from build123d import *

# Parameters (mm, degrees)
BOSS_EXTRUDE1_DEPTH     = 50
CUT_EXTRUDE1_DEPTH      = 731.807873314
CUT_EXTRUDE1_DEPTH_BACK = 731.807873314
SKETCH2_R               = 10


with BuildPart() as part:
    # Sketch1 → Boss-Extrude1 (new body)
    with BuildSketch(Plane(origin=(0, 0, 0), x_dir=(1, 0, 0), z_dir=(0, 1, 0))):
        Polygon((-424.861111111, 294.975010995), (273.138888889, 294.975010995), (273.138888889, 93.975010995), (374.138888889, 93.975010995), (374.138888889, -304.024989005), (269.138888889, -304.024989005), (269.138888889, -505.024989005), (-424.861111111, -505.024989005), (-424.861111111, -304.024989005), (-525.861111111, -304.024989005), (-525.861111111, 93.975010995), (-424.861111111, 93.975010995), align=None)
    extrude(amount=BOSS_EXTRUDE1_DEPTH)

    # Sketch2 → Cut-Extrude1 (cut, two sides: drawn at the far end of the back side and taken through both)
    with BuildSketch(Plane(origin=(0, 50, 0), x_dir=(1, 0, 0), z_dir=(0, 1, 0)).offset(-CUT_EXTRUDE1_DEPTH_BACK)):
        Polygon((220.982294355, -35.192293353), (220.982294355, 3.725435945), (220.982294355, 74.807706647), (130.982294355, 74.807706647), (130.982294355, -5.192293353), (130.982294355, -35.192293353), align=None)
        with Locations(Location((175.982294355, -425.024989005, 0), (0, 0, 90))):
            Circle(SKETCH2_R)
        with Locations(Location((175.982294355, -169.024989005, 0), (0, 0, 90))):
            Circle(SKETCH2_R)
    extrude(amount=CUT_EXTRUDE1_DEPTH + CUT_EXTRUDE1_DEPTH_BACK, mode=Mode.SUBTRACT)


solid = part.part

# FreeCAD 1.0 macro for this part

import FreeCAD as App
import Part
import Sketcher
from FreeCAD import Vector
Q = App.Units.Quantity


def add_polygon(sketch, points):
    """Adds a closed chain of lines whose ends are joined by coincident constraints."""
    first, n = sketch.GeometryCount, len(points)
    for a, b in zip(points, points[1:] + points[:1]):
        sketch.addGeometry(Part.LineSegment(App.Vector(*a, 0), App.Vector(*b, 0)), False)
    for i in range(n):
        sketch.addConstraint(Sketcher.Constraint("Coincident", first + i, 2, first + (i + 1) % n, 1))

doc = App.newDocument("Part")
body = doc.addObject("PartDesign::Body", "Body")

sketch1 = body.newObject("Sketcher::SketchObject", "Sketch")
sketch1.AttachmentSupport = (doc.getObject("XZ_Plane"), [""])
sketch1.MapMode = "FlatFace"
add_polygon(sketch1, [(273.138889, -294.975011), (-424.861111, -294.975011), (-424.861111, -93.975011), (-525.861111, -93.975011), (-525.861111, 304.024989), (-424.861111, 304.024989), (-424.861111, 505.024989), (269.138889, 505.024989), (269.138889, 304.024989), (374.138889, 304.024989), (374.138889, -93.975011), (273.138889, -93.975011)])
sketch1.addConstraint([
    Sketcher.Constraint("Horizontal", 0),
    Sketcher.Constraint("Vertical", 1),
    Sketcher.Constraint("Horizontal", 2),
    Sketcher.Constraint("Vertical", 3),
    Sketcher.Constraint("Horizontal", 4),
    Sketcher.Constraint("Vertical", 5),
    Sketcher.Constraint("Horizontal", 6),
    Sketcher.Constraint("Vertical", 7),
    Sketcher.Constraint("Horizontal", 8),
    Sketcher.Constraint("Vertical", 9),
    Sketcher.Constraint("Horizontal", 10),
    Sketcher.Constraint("Vertical", 11),
    Sketcher.Constraint("Horizontal", 4, 2, 7, 2),
    Sketcher.Constraint("Horizontal", 2, 2, 9, 2),
    Sketcher.Constraint("Vertical", 1, 2, 4, 2),
    Sketcher.Constraint("Equal", 4, 10),
    Sketcher.Constraint("Equal", 1, 5),
    Sketcher.Constraint("DistanceX", 0, 2, 0, 1, Q("698 mm")),
    Sketcher.Constraint("DistanceX", 2, 2, 2, 1, Q("101 mm")),
    Sketcher.Constraint("DistanceX", 6, 1, 6, 2, Q("694 mm")),
    Sketcher.Constraint("DistanceY", 1, 1, 1, 2, Q("201 mm")),
    Sketcher.Constraint("DistanceY", 3, 1, 3, 2, Q("398 mm")),
    Sketcher.Constraint("DistanceX", 0, 2, -1, 1, Q("424.861111 mm")),
    Sketcher.Constraint("DistanceY", 0, 2, -1, 1, Q("294.975011 mm")),
])
pad1 = body.newObject("PartDesign::Pad", "Pad")
pad1.Profile = sketch1
pad1.Length = 50
pad1.Reversed = True

sketch2 = body.newObject("Sketcher::SketchObject", "Sketch001")
sketch2.AttachmentSupport = (doc.getObject("XZ_Plane"), [""])
sketch2.MapMode = "FlatFace"
sketch2.AttachmentOffset = App.Placement(Vector(0, 0, -50), App.Rotation())
add_polygon(sketch2, [(220.982294, 35.192293), (220.982294, -74.807707), (130.982294, -74.807707), (130.982294, 35.192293)])
sketch2.addGeometry(Part.Circle(Vector(175.982294, 425.024989, 0), Vector(0, 0, 1), 10), False)
sketch2.addGeometry(Part.Circle(Vector(175.982294, 169.024989, 0), Vector(0, 0, 1), 10), False)
sketch2.addConstraint([
    Sketcher.Constraint("Vertical", 0),
    Sketcher.Constraint("Horizontal", 1),
    Sketcher.Constraint("Vertical", 2),
    Sketcher.Constraint("Horizontal", 3),
    Sketcher.Constraint("Equal", 4, 5),
    Sketcher.Constraint("Vertical", 4, 3, 5, 3),
    Sketcher.Constraint("Diameter", 4, Q("20 mm")),
    Sketcher.Constraint("DistanceX", 1, 2, 1, 1, Q("90 mm")),
    Sketcher.Constraint("DistanceY", 0, 2, 0, 1, Q("110 mm")),
    Sketcher.Constraint("DistanceY", 5, 3, 4, 3, Q("256 mm")),
    Sketcher.Constraint("DistanceX", 5, 3, 0, 2, Q("45 mm")),
    Sketcher.Constraint("DistanceY", -1, 1, 4, 3, Q("425.024989 mm")),
    Sketcher.Constraint("DistanceX", -1, 1, 4, 3, Q("175.982294 mm")),
    Sketcher.Constraint("DistanceY", 0, 2, -1, 1, Q("74.807707 mm")),
])
pocket1 = body.newObject("PartDesign::Pocket", "Pocket")
pocket1.Profile = sketch2
pocket1.Type = "ThroughAll"
pocket1.Midplane = True

doc.recompute()
